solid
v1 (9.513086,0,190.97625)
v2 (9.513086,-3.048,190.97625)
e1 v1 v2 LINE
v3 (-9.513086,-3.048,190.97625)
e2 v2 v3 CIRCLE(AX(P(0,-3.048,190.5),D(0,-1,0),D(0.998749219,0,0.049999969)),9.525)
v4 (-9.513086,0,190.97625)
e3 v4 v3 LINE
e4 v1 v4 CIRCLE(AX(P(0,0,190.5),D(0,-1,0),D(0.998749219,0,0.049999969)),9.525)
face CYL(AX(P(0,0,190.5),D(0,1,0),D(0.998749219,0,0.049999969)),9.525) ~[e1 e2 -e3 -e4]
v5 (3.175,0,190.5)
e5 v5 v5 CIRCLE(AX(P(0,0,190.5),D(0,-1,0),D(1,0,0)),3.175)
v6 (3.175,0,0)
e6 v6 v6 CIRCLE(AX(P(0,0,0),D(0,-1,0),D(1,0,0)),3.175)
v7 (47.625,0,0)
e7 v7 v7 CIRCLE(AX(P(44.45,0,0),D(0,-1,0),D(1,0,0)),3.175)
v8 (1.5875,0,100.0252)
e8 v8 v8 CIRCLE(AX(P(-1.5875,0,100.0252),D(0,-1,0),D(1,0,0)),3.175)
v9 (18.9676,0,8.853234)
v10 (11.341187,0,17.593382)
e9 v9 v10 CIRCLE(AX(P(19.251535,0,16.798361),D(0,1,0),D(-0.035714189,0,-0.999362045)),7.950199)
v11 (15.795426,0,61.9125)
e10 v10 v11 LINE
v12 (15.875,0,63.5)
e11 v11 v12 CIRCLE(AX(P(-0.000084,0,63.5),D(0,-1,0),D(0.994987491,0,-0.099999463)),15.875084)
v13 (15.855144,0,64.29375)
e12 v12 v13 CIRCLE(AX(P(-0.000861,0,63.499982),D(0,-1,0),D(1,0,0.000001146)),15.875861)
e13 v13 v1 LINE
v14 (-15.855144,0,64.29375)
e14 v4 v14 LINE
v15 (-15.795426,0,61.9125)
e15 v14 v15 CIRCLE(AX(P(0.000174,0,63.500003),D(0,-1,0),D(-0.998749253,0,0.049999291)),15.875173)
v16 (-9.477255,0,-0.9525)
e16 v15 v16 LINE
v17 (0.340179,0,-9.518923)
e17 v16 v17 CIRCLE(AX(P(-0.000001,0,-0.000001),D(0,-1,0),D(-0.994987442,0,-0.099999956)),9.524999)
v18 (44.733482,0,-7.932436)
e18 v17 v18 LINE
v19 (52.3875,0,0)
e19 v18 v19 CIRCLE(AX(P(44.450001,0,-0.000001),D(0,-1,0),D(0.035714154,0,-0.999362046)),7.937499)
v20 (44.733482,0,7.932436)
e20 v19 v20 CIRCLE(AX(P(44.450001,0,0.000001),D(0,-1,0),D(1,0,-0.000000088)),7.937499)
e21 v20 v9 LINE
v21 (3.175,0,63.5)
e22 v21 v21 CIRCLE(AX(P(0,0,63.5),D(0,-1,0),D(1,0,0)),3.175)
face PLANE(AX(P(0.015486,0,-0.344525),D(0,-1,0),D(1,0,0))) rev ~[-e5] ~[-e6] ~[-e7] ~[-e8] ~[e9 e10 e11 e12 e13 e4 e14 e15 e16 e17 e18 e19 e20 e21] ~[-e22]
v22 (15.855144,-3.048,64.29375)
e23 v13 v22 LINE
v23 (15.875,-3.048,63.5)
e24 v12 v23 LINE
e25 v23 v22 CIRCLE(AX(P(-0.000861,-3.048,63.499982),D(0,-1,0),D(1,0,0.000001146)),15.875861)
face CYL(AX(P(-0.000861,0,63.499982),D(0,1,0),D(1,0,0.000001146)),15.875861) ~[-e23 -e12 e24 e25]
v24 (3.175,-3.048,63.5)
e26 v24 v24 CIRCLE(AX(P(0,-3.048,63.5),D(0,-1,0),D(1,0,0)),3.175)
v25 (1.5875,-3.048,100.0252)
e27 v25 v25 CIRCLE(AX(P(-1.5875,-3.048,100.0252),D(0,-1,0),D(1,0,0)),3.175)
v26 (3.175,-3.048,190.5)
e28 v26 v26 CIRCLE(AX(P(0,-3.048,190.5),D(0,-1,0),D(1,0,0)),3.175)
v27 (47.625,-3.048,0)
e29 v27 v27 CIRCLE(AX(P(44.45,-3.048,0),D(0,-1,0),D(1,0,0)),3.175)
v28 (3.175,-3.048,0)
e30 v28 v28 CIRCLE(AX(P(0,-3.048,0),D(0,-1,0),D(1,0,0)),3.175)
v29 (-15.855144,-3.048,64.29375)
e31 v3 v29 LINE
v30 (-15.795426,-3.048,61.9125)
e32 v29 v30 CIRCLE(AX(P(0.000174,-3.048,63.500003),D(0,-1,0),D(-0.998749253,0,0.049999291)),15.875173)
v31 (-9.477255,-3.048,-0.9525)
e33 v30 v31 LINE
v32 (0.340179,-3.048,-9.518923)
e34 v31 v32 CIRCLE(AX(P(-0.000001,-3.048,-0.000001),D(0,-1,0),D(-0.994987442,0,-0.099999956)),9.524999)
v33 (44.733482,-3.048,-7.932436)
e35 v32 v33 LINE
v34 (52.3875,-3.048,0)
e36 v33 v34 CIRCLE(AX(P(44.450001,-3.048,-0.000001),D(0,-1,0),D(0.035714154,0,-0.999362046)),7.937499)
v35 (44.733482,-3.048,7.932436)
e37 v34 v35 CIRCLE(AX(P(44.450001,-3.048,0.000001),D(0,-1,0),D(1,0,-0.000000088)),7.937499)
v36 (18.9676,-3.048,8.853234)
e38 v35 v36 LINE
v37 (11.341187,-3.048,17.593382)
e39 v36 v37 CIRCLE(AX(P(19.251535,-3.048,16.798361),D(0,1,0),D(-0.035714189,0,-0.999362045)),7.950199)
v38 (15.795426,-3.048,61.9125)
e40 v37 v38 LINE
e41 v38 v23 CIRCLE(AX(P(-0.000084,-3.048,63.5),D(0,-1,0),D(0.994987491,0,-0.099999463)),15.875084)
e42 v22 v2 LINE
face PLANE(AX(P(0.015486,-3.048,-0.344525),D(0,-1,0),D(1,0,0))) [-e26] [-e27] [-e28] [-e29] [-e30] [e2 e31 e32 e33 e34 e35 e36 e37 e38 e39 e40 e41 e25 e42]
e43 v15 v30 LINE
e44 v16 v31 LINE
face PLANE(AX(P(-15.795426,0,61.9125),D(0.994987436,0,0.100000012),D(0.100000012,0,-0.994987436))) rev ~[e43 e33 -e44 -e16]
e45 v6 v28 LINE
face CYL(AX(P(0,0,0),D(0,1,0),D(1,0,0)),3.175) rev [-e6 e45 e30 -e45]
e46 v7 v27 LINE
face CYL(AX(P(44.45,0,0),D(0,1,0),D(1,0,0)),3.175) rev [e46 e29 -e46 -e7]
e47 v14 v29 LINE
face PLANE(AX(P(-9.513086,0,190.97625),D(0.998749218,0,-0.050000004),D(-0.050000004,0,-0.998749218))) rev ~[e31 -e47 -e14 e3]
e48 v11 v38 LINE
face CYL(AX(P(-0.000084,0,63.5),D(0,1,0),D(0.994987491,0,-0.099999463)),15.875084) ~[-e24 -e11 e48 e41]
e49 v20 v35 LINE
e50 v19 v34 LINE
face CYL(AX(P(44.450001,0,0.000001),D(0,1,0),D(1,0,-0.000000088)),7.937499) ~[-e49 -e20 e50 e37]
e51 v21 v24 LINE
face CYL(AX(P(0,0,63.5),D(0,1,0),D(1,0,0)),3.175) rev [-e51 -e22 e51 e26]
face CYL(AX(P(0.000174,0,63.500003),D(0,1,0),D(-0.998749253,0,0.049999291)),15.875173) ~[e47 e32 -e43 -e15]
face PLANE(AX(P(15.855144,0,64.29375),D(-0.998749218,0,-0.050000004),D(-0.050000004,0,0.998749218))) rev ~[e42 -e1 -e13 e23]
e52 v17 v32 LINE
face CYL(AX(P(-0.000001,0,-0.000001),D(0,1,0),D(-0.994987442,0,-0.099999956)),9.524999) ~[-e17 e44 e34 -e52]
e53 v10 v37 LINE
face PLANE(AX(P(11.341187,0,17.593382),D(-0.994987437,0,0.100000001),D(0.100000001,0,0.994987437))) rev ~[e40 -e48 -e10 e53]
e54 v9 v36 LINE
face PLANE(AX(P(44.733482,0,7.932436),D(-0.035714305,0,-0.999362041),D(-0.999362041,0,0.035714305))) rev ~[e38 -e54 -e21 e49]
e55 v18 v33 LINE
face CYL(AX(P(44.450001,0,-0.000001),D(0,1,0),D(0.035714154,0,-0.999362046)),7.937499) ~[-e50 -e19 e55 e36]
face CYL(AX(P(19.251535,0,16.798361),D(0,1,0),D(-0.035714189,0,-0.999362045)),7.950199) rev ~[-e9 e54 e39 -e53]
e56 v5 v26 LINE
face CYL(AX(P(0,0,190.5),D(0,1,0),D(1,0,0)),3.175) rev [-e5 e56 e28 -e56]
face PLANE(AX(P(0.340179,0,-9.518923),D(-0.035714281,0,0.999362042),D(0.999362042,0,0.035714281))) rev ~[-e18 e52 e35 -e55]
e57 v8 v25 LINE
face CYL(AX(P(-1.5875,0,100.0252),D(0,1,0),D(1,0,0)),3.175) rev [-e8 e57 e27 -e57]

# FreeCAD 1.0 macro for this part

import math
import FreeCAD as App
import Part
import Sketcher
from FreeCAD import Vector
Q = App.Units.Quantity

doc = App.newDocument("Part")
body = doc.addObject("PartDesign::Body", "Body")

sketch1 = body.newObject("Sketcher::SketchObject", "Sketch")
sketch1.AttachmentSupport = (doc.getObject("XZ_Plane"), [""])
sketch1.MapMode = "FlatFace"
sketch1.addGeometry([
    Part.ArcOfCircle(Part.Circle(Vector(-0.000001, -0.000001, 0), Vector(0, 0, 1), 9.524999), math.radians(-174.260832), math.radians(-87.953281)),
    Part.LineSegment(Vector(0.340179, -9.518923, 0), Vector(44.733482, -7.932436, 0)),
    Part.ArcOfCircle(Part.Circle(Vector(44.450001, -0.000001, 0), Vector(0, 0, 1), 7.937499), math.radians(-87.953294), math.radians(0.000005)),
    Part.ArcOfCircle(Part.Circle(Vector(44.450001, 0.000001, 0), Vector(0, 0, 1), 7.937499), math.radians(-0.000005), math.radians(87.953294)),
    Part.LineSegment(Vector(44.733482, 7.932436, 0), Vector(18.9676, 8.853234, 0)),
    Part.ArcOfCircle(Part.Circle(Vector(19.251535, 16.798361, 0), Vector(0, 0, 1), 7.950199), math.radians(174.260822), math.radians(267.953292)),
    Part.LineSegment(Vector(11.341187, 17.593382, 0), Vector(15.795426, 61.9125, 0)),
    Part.ArcOfCircle(Part.Circle(Vector(-0.000084, 63.5, 0), Vector(0, 0, 1), 15.875084), math.radians(-5.73914), math.radians(0)),
    Part.ArcOfCircle(Part.Circle(Vector(-0.000861, 63.499982, 0), Vector(0, 0, 1), 15.875861), math.radians(0.000066), math.radians(2.865894)),
    Part.LineSegment(Vector(15.855144, 64.29375, 0), Vector(9.513086, 190.97625, 0)),
    Part.ArcOfCircle(Part.Circle(Vector(0, 190.5, 0), Vector(0, 0, 1), 9.525), math.radians(2.865982), math.radians(177.134018)),
    Part.LineSegment(Vector(-9.513086, 190.97625, 0), Vector(-15.855144, 64.29375, 0)),
    Part.ArcOfCircle(Part.Circle(Vector(0.000174, 63.500003, 0), Vector(0, 0, 1), 15.875173), math.radians(177.134057), math.radians(185.739117)),
    Part.LineSegment(Vector(-15.795426, 61.9125, 0), Vector(-9.477255, -0.9525, 0)),
    Part.Circle(Vector(0, 0, 0), Vector(0, 0, 1), 3.175),
    Part.Circle(Vector(0, 63.5, 0), Vector(0, 0, 1), 3.175),
    Part.Circle(Vector(44.45, 0, 0), Vector(0, 0, 1), 3.175),
    Part.Circle(Vector(-1.5875, 100.0252, 0), Vector(0, 0, 1), 3.175),
    Part.Circle(Vector(0, 190.5, 0), Vector(0, 0, 1), 3.175),
], False)
sketch1.addConstraint([
    Sketcher.Constraint("Coincident", 0, 2, 1, 1),
    Sketcher.Constraint("Coincident", 1, 2, 2, 1),
    Sketcher.Constraint("Coincident", 2, 2, 3, 1),
    Sketcher.Constraint("Coincident", 3, 2, 4, 1),
    Sketcher.Constraint("Coincident", 4, 2, 5, 2),
    Sketcher.Constraint("Coincident", 5, 1, 6, 1),
    Sketcher.Constraint("Coincident", 6, 2, 7, 1),
    Sketcher.Constraint("Coincident", 7, 2, 8, 1),
    Sketcher.Constraint("Coincident", 8, 2, 9, 1),
    Sketcher.Constraint("Coincident", 9, 2, 10, 1),
    Sketcher.Constraint("Coincident", 10, 2, 11, 1),
    Sketcher.Constraint("Coincident", 11, 2, 12, 1),
    Sketcher.Constraint("Coincident", 12, 2, 13, 1),
    Sketcher.Constraint("Coincident", 13, 2, 0, 1),
    Sketcher.Constraint("Coincident", 0, 3, -1, 1),
    Sketcher.Constraint("Coincident", 14, 3, -1, 1),
    Sketcher.Constraint("Coincident", 3, 3, 2, 3),
    Sketcher.Constraint("Coincident", 16, 3, 2, 3),
    Sketcher.Constraint("Coincident", 18, 3, 10, 3),
    Sketcher.Constraint("PointOnObject", 2, 3, -1),
    Sketcher.Constraint("PointOnObject", 10, 3, -2),
    Sketcher.Constraint("PointOnObject", 15, 3, -2),
    Sketcher.Constraint("PointOnObject", 2, 2, -1),
    Sketcher.Constraint("Diameter", 14, Q("0.25 in")),
    Sketcher.Constraint("Diameter", 15, Q("0.25 in")),
    Sketcher.Constraint("Diameter", 16, Q("0.25 in")),
    Sketcher.Constraint("Diameter", 17, Q("0.25 in")),
    Sketcher.Constraint("Diameter", 18, Q("0.25 in")),
    Sketcher.Constraint("Radius", 0, Q("0.375 in")),
    Sketcher.Constraint("Radius", 2, Q("0.3125 in")),
    Sketcher.Constraint("Radius", 5, Q("0.313 in")),
    Sketcher.Constraint("Radius", 10, Q("0.375 in")),
    Sketcher.Constraint("DistanceY", 7, 3, 10, 3, Q("5 in")),
    Sketcher.Constraint("DistanceY", 12, 3, 18, 3, Q("4.9999999 in")),
    Sketcher.Constraint("DistanceY", 15, 3, 18, 3, Q("5 in")),
    Sketcher.Constraint("DistanceY", -1, 1, 7, 3, Q("2.5 in")),
    Sketcher.Constraint("DistanceY", -1, 1, 7, 2, Q("2.5 in")),
    Sketcher.Constraint("DistanceX", -1, 1, 2, 3, Q("1.75 in")),
    Sketcher.Constraint("DistanceX", 17, 3, -1, 1, Q("0.0625 in")),
    Sketcher.Constraint("DistanceY", -1, 1, 17, 3, Q("3.938 in")),
    Sketcher.Constraint("DistanceY", -1, 1, 6, 2, Q("2.4375 in")),
    Sketcher.Constraint("DistanceX", -1, 1, 7, 2, Q("0.625 in")),
    Sketcher.Constraint("DistanceY", -1, 1, 8, 2, Q("2.53125 in")),
    Sketcher.Constraint("DistanceY", -1, 1, 11, 2, Q("2.53125 in")),
    Sketcher.Constraint("DistanceY", -1, 1, 12, 2, Q("2.4375 in")),
    Sketcher.Constraint("Radius", 8, Q("15.875861 mm")),
    Sketcher.Constraint("DistanceY", 13, 2, -1, 1, Q("0.0375 in")),
    Sketcher.Constraint("Radius", 7, Q("15.875084 mm")),
    Sketcher.Constraint("Radius", 12, Q("15.875173 mm")),
    Sketcher.Constraint("DistanceY", 5, 3, 5, 1, Q("0.0313 in")),
    Sketcher.Constraint("DistanceY", 8, 2, 9, 2, Q("4.9875 in")),
    Sketcher.Constraint("DistanceX", -1, 1, 4, 2, Q("18.9676 mm")),
    Sketcher.Constraint("Distance", 4, Q("25.78233 mm")),
    Sketcher.Constraint("Distance", 6, Q("44.54239 mm")),
    Sketcher.Constraint("Distance", 11, Q("126.841151 mm")),
    Sketcher.Constraint("DistanceY", -1, 1, 5, 3, Q("16.798361 mm")),
    Sketcher.Constraint("DistanceY", -1, 1, 8, 3, Q("63.499982 mm")),
    Sketcher.Constraint("DistanceX", -1, 1, 0, 2, Q("0.340179 mm")),
    Sketcher.Constraint("DistanceY", -1, 1, 10, 2, Q("190.97625 mm")),
    Sketcher.Constraint("DistanceX", 2, 3, 1, 2, Q("0.283481 mm")),
])
pad1 = body.newObject("PartDesign::Pad", "Pad")
pad1.Profile = sketch1
pad1.Length = Q("0.12 in")

doc.recompute()
